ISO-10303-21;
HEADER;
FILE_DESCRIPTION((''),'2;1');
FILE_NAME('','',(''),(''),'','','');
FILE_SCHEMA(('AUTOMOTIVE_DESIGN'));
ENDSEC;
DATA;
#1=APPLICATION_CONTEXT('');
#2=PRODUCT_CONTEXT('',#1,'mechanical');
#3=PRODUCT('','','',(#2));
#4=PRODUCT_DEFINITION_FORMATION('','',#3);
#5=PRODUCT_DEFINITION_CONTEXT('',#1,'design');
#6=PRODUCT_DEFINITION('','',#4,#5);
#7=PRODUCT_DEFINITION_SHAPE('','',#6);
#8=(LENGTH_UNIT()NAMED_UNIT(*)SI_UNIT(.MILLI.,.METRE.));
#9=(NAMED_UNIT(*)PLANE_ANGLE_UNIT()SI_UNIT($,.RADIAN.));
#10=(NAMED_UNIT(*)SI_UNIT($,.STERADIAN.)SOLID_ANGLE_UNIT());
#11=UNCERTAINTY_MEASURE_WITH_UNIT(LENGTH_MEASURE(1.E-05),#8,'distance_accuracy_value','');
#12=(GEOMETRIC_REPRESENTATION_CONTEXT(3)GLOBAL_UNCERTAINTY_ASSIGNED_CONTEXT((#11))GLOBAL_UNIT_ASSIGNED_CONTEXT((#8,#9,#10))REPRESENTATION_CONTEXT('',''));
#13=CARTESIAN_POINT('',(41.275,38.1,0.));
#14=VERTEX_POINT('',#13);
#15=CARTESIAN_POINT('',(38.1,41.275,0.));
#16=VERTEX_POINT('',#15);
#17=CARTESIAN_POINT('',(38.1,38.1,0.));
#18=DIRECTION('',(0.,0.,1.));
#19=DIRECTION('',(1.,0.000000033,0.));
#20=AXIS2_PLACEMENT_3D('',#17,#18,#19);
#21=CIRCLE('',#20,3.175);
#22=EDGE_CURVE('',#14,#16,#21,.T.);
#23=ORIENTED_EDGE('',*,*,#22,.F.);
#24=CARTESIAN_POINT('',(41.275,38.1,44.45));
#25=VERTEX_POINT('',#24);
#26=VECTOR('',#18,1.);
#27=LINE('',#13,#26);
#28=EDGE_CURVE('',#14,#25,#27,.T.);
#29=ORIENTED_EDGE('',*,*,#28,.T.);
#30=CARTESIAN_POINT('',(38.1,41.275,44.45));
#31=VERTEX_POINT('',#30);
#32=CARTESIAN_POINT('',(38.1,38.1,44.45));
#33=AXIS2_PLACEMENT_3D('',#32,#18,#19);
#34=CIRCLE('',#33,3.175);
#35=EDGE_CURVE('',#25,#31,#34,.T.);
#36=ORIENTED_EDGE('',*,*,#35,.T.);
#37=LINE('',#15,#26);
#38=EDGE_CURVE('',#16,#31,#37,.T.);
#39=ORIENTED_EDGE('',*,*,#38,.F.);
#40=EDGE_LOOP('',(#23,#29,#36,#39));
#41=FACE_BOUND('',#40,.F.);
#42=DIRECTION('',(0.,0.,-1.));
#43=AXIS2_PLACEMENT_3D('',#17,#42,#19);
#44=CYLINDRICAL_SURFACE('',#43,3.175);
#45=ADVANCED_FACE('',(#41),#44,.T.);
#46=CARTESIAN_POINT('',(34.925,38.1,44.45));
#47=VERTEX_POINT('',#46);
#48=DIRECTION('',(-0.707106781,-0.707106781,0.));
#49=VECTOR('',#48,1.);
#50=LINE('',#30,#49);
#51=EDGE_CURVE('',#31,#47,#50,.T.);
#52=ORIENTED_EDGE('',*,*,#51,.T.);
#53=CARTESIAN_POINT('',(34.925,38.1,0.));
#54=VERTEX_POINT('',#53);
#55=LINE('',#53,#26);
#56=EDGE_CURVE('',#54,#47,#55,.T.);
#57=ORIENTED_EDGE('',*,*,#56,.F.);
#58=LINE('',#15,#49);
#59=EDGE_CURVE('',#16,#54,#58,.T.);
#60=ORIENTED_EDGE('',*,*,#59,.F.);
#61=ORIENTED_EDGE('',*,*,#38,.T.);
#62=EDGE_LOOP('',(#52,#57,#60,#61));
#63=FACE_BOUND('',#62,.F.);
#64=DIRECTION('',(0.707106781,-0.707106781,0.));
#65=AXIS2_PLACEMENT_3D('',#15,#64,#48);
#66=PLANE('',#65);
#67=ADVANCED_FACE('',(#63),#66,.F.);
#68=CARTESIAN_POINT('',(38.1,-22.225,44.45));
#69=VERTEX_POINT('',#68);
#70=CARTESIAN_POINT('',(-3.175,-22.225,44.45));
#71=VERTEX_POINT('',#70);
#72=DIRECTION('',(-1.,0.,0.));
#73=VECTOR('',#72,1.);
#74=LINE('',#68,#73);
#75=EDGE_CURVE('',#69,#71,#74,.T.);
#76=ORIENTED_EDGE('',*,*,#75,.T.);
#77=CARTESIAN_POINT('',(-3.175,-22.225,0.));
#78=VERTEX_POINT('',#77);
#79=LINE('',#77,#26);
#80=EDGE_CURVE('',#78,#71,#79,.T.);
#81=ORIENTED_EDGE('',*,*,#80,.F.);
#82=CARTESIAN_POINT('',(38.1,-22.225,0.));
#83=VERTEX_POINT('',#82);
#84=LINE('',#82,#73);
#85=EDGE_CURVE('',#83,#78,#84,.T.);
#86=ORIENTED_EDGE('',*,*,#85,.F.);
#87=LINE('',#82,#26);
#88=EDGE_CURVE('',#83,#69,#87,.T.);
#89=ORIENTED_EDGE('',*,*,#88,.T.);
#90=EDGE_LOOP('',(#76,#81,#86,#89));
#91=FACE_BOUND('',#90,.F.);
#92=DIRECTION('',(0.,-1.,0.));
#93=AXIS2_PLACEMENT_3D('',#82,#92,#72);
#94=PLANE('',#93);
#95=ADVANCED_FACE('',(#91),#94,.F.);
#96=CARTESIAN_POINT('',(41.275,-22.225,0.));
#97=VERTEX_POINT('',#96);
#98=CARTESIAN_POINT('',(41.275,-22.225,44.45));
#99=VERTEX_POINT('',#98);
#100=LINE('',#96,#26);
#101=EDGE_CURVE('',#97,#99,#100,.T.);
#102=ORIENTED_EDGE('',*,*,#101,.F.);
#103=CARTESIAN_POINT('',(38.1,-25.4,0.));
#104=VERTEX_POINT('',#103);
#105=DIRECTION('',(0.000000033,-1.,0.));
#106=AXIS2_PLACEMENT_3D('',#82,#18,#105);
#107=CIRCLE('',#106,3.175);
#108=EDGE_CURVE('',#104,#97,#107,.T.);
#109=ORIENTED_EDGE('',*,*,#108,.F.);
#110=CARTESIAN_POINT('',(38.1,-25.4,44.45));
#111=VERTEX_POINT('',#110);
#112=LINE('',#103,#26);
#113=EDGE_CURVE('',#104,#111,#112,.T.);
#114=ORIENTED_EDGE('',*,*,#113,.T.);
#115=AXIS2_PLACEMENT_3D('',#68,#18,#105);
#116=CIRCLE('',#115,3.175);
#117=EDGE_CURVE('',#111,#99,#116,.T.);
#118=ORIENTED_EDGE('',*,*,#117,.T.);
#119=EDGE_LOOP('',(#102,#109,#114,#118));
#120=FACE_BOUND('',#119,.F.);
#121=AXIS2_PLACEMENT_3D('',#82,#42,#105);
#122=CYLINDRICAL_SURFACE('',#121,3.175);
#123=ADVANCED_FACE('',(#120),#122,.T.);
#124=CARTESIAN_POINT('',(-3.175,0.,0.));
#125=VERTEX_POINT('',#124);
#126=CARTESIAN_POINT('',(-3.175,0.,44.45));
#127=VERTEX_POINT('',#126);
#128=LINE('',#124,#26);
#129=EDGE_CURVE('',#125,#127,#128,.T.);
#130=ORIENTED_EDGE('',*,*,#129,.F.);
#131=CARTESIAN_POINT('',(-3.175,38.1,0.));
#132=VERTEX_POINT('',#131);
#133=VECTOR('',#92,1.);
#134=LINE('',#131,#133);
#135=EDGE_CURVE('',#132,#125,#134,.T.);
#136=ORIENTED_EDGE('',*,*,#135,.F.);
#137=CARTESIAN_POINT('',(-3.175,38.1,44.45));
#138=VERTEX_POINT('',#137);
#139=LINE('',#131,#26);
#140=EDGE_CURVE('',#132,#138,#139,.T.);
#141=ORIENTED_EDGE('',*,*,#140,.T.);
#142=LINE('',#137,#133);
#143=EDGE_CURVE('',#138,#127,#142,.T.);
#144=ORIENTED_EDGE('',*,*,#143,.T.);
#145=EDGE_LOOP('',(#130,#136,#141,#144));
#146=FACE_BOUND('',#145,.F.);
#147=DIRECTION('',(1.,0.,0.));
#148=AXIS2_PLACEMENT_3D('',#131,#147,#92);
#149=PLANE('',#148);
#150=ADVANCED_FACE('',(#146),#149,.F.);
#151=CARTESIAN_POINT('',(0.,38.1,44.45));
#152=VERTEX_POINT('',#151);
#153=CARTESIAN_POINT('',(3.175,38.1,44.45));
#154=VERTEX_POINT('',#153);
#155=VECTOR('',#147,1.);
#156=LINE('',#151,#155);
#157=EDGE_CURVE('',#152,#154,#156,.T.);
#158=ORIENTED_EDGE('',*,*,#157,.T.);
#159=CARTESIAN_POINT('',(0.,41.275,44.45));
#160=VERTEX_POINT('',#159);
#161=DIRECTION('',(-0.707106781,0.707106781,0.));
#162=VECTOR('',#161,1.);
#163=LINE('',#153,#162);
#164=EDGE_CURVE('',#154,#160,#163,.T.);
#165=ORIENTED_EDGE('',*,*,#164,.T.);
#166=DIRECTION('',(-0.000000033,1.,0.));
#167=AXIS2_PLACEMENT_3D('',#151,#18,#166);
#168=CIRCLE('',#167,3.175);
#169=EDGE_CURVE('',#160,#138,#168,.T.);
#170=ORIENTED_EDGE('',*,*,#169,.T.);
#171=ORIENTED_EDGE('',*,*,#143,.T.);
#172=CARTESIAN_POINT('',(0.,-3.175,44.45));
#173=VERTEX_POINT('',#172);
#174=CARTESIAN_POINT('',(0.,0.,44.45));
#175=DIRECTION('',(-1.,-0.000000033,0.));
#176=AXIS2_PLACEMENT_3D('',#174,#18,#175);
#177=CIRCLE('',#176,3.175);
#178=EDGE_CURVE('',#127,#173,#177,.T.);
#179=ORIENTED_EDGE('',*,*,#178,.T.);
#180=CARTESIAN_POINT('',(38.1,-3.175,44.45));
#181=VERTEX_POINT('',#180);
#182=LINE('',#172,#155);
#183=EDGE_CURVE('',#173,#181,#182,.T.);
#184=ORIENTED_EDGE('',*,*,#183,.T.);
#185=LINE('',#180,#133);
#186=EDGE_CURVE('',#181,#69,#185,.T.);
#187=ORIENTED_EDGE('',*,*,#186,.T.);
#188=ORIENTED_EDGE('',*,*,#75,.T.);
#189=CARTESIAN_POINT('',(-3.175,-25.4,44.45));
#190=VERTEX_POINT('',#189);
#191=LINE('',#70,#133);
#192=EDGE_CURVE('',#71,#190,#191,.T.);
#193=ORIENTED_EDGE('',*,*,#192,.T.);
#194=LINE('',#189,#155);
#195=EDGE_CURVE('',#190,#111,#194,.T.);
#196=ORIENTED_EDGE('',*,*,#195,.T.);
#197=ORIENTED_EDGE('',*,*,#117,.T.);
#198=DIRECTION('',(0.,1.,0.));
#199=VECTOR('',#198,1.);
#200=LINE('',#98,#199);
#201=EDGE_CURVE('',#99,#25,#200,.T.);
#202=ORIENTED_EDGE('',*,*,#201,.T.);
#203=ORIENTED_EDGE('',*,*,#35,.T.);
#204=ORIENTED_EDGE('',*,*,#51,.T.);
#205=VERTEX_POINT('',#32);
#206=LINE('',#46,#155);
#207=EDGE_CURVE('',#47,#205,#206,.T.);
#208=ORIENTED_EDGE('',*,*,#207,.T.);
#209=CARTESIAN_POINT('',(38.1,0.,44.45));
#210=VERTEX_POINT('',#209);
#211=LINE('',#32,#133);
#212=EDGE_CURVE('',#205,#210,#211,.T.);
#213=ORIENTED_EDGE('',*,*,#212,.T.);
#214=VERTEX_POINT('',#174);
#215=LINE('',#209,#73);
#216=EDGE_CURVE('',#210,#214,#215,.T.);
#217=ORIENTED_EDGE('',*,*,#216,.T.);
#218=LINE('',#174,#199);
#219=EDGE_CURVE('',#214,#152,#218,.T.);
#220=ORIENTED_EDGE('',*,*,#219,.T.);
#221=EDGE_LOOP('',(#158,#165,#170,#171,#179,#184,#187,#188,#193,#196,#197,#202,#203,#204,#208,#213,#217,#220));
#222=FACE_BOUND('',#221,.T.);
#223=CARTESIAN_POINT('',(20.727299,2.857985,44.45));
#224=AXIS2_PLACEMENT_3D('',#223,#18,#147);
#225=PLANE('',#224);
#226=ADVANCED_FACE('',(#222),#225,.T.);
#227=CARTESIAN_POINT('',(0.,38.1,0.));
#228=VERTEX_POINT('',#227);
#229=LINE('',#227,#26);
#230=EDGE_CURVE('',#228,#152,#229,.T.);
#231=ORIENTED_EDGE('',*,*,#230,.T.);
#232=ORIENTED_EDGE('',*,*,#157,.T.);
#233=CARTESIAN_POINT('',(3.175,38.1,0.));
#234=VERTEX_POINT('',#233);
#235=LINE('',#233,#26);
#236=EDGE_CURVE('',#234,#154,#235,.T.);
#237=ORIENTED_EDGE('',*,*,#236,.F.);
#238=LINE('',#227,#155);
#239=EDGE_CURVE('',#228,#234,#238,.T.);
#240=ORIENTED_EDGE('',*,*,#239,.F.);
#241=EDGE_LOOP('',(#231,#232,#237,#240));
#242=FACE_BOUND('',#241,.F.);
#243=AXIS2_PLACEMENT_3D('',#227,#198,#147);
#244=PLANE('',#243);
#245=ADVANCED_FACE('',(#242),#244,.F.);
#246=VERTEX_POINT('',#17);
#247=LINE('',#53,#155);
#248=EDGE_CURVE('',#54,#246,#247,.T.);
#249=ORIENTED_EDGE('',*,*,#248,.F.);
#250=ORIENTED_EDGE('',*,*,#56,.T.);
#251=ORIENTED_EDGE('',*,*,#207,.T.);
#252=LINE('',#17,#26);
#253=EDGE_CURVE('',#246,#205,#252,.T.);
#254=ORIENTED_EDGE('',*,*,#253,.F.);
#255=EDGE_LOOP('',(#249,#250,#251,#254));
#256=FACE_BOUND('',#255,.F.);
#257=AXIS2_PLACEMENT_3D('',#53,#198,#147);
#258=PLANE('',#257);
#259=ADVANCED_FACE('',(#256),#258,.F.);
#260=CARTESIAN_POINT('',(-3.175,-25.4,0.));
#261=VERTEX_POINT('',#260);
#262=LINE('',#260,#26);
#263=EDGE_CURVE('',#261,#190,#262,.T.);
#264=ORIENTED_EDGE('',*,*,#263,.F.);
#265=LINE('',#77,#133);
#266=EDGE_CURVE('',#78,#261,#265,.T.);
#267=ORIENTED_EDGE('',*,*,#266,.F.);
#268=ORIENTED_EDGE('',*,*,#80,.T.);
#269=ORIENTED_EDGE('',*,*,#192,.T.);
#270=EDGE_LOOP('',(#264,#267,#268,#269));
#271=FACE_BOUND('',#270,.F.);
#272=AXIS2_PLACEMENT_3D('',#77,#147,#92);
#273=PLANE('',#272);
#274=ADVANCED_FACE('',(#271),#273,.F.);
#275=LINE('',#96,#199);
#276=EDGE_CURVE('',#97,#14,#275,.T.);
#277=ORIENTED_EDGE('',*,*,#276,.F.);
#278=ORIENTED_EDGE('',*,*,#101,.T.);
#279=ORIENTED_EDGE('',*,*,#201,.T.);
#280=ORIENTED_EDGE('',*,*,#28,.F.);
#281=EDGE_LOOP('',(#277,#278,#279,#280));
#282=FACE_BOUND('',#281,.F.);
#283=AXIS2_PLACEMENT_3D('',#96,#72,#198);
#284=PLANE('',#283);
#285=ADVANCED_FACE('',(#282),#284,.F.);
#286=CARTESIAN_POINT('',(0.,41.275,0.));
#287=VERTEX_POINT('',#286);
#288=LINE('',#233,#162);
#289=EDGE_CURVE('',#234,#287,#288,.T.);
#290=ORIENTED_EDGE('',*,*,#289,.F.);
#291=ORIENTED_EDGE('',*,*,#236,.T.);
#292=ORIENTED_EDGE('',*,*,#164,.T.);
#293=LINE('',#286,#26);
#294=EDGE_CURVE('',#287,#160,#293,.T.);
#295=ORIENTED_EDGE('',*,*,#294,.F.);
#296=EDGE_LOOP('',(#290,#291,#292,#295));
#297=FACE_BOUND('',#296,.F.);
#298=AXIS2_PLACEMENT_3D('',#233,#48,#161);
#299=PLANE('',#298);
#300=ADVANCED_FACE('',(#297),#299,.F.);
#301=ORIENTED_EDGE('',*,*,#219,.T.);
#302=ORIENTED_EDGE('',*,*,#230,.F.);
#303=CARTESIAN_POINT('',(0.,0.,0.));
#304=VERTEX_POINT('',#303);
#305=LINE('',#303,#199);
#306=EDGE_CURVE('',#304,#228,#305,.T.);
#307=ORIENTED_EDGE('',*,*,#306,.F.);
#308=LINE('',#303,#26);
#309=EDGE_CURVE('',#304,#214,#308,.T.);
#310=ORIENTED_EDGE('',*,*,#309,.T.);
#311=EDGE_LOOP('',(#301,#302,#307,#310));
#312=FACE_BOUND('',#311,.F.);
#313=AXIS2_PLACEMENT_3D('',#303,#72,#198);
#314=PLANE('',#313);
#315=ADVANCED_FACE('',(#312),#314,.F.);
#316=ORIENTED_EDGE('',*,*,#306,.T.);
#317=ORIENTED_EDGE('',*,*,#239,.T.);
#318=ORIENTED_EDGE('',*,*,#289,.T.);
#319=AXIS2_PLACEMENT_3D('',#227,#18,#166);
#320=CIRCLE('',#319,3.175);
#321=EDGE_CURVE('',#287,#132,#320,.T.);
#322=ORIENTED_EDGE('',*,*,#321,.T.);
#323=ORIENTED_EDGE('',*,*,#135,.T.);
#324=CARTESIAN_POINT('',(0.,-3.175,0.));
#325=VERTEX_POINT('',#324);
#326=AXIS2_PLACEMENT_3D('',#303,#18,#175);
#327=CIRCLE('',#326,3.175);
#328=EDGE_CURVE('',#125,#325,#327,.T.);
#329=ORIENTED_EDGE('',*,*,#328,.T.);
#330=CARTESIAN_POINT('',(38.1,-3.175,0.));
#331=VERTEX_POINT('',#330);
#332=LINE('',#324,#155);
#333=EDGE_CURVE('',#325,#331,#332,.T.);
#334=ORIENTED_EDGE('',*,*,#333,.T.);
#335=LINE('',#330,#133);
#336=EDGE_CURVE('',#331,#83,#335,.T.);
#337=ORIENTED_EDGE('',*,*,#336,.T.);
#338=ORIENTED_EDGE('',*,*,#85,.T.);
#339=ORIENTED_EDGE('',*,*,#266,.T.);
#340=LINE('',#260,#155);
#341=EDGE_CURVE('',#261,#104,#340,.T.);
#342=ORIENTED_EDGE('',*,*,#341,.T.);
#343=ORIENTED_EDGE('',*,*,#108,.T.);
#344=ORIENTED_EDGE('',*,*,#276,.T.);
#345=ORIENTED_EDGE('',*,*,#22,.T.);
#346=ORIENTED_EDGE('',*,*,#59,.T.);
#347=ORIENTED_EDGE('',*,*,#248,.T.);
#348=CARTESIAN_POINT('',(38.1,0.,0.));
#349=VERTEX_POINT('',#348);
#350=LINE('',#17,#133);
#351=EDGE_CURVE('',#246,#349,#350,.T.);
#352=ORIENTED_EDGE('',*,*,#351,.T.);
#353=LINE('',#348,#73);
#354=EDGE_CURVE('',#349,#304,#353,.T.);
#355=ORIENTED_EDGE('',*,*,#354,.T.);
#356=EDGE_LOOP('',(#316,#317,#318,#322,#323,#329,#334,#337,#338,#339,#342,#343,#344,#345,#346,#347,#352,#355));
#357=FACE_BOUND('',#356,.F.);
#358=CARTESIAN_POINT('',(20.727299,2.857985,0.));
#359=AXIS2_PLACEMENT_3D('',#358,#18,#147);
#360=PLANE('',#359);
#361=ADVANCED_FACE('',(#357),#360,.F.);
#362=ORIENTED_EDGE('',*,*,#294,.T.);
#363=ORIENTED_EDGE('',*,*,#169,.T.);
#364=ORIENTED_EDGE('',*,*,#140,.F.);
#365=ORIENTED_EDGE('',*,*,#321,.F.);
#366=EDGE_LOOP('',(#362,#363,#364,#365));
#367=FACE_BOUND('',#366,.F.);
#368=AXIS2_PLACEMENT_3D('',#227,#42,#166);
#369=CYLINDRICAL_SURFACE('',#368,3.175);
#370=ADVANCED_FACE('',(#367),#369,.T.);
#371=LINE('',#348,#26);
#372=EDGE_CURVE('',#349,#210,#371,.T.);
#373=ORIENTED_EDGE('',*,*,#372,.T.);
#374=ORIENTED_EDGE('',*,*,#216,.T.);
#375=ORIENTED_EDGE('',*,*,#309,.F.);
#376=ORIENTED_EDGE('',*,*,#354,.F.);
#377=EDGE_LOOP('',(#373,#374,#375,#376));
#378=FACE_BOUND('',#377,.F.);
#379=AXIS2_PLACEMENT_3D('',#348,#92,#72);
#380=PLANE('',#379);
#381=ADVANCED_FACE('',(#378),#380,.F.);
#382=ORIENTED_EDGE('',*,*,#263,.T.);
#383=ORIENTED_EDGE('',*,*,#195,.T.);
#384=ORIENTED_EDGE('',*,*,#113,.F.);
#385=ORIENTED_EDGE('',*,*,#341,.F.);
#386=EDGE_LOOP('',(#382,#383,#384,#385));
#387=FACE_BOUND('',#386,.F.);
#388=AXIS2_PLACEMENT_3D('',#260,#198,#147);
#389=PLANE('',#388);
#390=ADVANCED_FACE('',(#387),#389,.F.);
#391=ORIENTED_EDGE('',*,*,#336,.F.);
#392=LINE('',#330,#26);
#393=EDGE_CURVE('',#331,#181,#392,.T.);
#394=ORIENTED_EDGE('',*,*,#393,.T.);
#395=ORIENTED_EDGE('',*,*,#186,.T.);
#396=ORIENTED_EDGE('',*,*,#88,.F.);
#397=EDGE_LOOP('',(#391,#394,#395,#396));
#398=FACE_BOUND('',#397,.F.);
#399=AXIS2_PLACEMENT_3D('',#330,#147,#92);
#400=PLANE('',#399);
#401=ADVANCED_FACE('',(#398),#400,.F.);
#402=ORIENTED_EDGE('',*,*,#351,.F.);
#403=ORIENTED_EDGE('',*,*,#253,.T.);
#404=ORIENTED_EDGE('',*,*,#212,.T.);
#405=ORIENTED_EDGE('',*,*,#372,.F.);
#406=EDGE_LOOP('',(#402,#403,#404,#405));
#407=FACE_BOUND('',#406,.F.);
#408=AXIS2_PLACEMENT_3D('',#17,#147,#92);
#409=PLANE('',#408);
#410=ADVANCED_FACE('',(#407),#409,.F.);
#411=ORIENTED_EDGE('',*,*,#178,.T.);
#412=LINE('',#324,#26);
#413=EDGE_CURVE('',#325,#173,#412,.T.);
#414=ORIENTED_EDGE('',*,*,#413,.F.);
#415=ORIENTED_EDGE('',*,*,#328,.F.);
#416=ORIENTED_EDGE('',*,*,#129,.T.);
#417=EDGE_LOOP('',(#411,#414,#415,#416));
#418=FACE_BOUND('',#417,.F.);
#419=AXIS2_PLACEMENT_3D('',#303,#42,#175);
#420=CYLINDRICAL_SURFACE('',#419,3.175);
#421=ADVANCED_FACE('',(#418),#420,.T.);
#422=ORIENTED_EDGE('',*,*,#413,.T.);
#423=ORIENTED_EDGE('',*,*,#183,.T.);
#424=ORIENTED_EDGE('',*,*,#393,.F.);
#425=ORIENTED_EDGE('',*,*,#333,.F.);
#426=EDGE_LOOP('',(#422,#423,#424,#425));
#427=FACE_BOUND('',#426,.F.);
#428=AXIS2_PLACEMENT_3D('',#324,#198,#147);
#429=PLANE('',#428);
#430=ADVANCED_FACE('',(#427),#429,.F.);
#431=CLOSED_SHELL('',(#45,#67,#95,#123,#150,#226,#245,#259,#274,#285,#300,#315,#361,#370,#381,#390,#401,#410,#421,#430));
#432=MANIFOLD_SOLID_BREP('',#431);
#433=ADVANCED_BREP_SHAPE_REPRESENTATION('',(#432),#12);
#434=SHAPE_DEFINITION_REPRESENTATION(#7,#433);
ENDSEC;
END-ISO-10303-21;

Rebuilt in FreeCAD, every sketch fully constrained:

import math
import FreeCAD as App
import Part
import Sketcher
Q = App.Units.Quantity

doc = App.newDocument("Part")
body = doc.addObject("PartDesign::Body", "Body")

sketch1 = doc.addObject("Sketcher::SketchObject", "Sketch")
body.addObject(sketch1)
sketch1.AttachmentSupport = (doc.XY_Plane, [""])
sketch1.MapMode = "FlatFace"
sketch1.addGeometry(Part.LineSegment(App.Vector(38.1, 0, 0), App.Vector(0, 0, 0)), False)
sketch1.addGeometry(Part.LineSegment(App.Vector(0, 0, 0), App.Vector(0, 38.1, 0)), False)
sketch1.addGeometry(Part.LineSegment(App.Vector(0, 38.1, 0), App.Vector(3.175, 38.1, 0)), False)
sketch1.addGeometry(Part.LineSegment(App.Vector(3.175, 38.1, 0), App.Vector(0, 41.275, 0)), False)
sketch1.addGeometry(Part.ArcOfCircle(Part.Circle(App.Vector(0, 38.1, 0), App.Vector(0, 0, 1), 3.175), math.radians(90.000002), math.radians(179.999998)), False)
sketch1.addGeometry(Part.LineSegment(App.Vector(-3.175, 38.1, 0), App.Vector(-3.175, 0, 0)), False)
sketch1.addGeometry(Part.ArcOfCircle(Part.Circle(App.Vector(0, 0, 0), App.Vector(0, 0, 1), 3.175), math.radians(-179.999998), math.radians(-90.000002)), False)
sketch1.addGeometry(Part.LineSegment(App.Vector(0, -3.175, 0), App.Vector(38.1, -3.175, 0)), False)
sketch1.addGeometry(Part.LineSegment(App.Vector(38.1, -3.175, 0), App.Vector(38.1, -22.225, 0)), False)
sketch1.addGeometry(Part.LineSegment(App.Vector(38.1, -22.225, 0), App.Vector(-3.175, -22.225, 0)), False)
sketch1.addGeometry(Part.LineSegment(App.Vector(-3.175, -22.225, 0), App.Vector(-3.175, -25.4, 0)), False)
sketch1.addGeometry(Part.LineSegment(App.Vector(-3.175, -25.4, 0), App.Vector(38.1, -25.4, 0)), False)
sketch1.addGeometry(Part.ArcOfCircle(Part.Circle(App.Vector(38.1, -22.225, 0), App.Vector(0, 0, 1), 3.175), math.radians(-89.999998), math.radians(-0.000002)), False)
sketch1.addGeometry(Part.LineSegment(App.Vector(41.275, -22.225, 0), App.Vector(41.275, 38.1, 0)), False)
sketch1.addGeometry(Part.ArcOfCircle(Part.Circle(App.Vector(38.1, 38.1, 0), App.Vector(0, 0, 1), 3.175), math.radians(0.000002), math.radians(89.999998)), False)
sketch1.addGeometry(Part.LineSegment(App.Vector(38.1, 41.275, 0), App.Vector(34.925, 38.1, 0)), False)
sketch1.addGeometry(Part.LineSegment(App.Vector(34.925, 38.1, 0), App.Vector(38.1, 38.1, 0)), False)
sketch1.addGeometry(Part.LineSegment(App.Vector(38.1, 38.1, 0), App.Vector(38.1, 0, 0)), False)
sketch1.addConstraint(Sketcher.Constraint("Coincident", 0, 2, 1, 1))
sketch1.addConstraint(Sketcher.Constraint("Coincident", 1, 2, 2, 1))
sketch1.addConstraint(Sketcher.Constraint("Coincident", 2, 2, 3, 1))
sketch1.addConstraint(Sketcher.Constraint("Coincident", 3, 2, 4, 1))
sketch1.addConstraint(Sketcher.Constraint("Tangent", 4, 2, 5, 1))
sketch1.addConstraint(Sketcher.Constraint("Tangent", 5, 2, 6, 1))
sketch1.addConstraint(Sketcher.Constraint("Tangent", 6, 2, 7, 1))
sketch1.addConstraint(Sketcher.Constraint("Coincident", 7, 2, 8, 1))
sketch1.addConstraint(Sketcher.Constraint("Coincident", 8, 2, 9, 1))
sketch1.addConstraint(Sketcher.Constraint("Coincident", 9, 2, 10, 1))
sketch1.addConstraint(Sketcher.Constraint("Coincident", 10, 2, 11, 1))
sketch1.addConstraint(Sketcher.Constraint("Tangent", 11, 2, 12, 1))
sketch1.addConstraint(Sketcher.Constraint("Tangent", 12, 2, 13, 1))
sketch1.addConstraint(Sketcher.Constraint("Tangent", 13, 2, 14, 1))
sketch1.addConstraint(Sketcher.Constraint("Coincident", 14, 2, 15, 1))
sketch1.addConstraint(Sketcher.Constraint("Coincident", 15, 2, 16, 1))
sketch1.addConstraint(Sketcher.Constraint("Coincident", 16, 2, 17, 1))
sketch1.addConstraint(Sketcher.Constraint("Coincident", 17, 2, 0, 1))
sketch1.addConstraint(Sketcher.Constraint("Horizontal", 0))
sketch1.addConstraint(Sketcher.Constraint("Vertical", 1))
sketch1.addConstraint(Sketcher.Constraint("Horizontal", 2))
sketch1.addConstraint(Sketcher.Constraint("Vertical", 5))
sketch1.addConstraint(Sketcher.Constraint("Horizontal", 7))
sketch1.addConstraint(Sketcher.Constraint("Vertical", 8))
sketch1.addConstraint(Sketcher.Constraint("Horizontal", 9))
sketch1.addConstraint(Sketcher.Constraint("Vertical", 10))
sketch1.addConstraint(Sketcher.Constraint("Horizontal", 11))
sketch1.addConstraint(Sketcher.Constraint("Vertical", 13))
sketch1.addConstraint(Sketcher.Constraint("Horizontal", 16))
sketch1.addConstraint(Sketcher.Constraint("Vertical", 17))
sketch1.addConstraint(Sketcher.Constraint("Coincident", 6, 3, -1, 1))
sketch1.addConstraint(Sketcher.Constraint("Coincident", 0, 2, -1, 1))
sketch1.addConstraint(Sketcher.Constraint("Coincident", 1, 2, 4, 3))
sketch1.addConstraint(Sketcher.Constraint("Coincident", 8, 2, 12, 3))
sketch1.addConstraint(Sketcher.Constraint("Coincident", 16, 2, 14, 3))
sketch1.addConstraint(Sketcher.Constraint("Equal", 6, 12))
sketch1.addConstraint(Sketcher.Constraint("Equal", 12, 14))
sketch1.addConstraint(Sketcher.Constraint("PointOnObject", 3, 2, -2))
sketch1.addConstraint(Sketcher.Constraint("Perpendicular", 3, 15))
sketch1.addConstraint(Sketcher.Constraint("Horizontal", 4, 3, 14, 3))
sketch1.addConstraint(Sketcher.Constraint("Vertical", 5, 2, 9, 2))
sketch1.addConstraint(Sketcher.Constraint("Vertical", 11, 2, 14, 2))
sketch1.addConstraint(Sketcher.Constraint("Equal", 2, 16))
sketch1.addConstraint(Sketcher.Constraint("Equal", 7, 1))
sketch1.addConstraint(Sketcher.Constraint("DistanceX", 0, 2, 0, 1, Q("1.5 in")))
sketch1.addConstraint(Sketcher.Constraint("DistanceY", 10, 2, -1, 1, Q("1 in")))
sketch1.addConstraint(Sketcher.Constraint("Radius", 4, Q("0.125 in")))
pad1 = doc.addObject("PartDesign::Pad", "Pad")
body.addObject(pad1)
pad1.Profile = sketch1
pad1.Length = Q("1.75 in")

doc.recompute()
